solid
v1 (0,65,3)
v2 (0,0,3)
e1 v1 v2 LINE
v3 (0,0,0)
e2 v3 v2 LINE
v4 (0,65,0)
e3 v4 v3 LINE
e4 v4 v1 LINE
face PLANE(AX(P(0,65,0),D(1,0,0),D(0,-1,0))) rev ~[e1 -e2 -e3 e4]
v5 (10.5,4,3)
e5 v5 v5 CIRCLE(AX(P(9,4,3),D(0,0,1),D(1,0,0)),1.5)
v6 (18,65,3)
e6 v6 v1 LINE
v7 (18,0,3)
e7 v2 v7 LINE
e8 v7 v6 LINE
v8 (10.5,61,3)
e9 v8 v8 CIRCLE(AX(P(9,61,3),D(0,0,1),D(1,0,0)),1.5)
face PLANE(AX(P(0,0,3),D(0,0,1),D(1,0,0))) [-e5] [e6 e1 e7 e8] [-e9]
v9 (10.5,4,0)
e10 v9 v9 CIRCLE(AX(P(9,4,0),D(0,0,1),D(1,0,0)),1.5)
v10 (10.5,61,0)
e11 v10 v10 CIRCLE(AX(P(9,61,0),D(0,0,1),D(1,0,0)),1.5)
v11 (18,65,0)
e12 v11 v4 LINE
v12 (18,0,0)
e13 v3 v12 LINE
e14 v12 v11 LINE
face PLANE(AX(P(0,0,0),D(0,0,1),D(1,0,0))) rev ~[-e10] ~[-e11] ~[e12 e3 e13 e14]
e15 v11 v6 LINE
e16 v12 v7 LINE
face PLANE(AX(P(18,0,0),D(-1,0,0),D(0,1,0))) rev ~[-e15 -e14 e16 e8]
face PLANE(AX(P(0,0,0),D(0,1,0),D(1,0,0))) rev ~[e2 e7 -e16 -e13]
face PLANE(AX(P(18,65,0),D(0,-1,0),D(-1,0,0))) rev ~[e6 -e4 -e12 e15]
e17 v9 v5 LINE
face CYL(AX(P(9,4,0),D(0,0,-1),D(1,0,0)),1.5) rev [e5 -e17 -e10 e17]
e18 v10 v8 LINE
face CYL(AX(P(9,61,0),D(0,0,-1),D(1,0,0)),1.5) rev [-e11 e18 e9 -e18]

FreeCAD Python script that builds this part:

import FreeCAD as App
import Part
import Sketcher
Q = App.Units.Quantity

doc = App.newDocument("Part")
body = doc.addObject("PartDesign::Body", "Body")

sketch1 = doc.addObject("Sketcher::SketchObject", "Sketch")
body.addObject(sketch1)
sketch1.AttachmentSupport = (doc.XY_Plane, [""])
sketch1.MapMode = "FlatFace"
sketch1.addGeometry([
    Part.LineSegment(App.Vector(0, 65, 0), App.Vector(0, 0, 0)),
    Part.LineSegment(App.Vector(0, 0, 0), App.Vector(18, 0, 0)),
    Part.LineSegment(App.Vector(18, 0, 0), App.Vector(18, 65, 0)),
    Part.LineSegment(App.Vector(18, 65, 0), App.Vector(0, 65, 0)),
    Part.Circle(App.Vector(9, 4, 0), App.Vector(0, 0, 1), 1.5),
    Part.Circle(App.Vector(9, 61, 0), App.Vector(0, 0, 1), 1.5),
], False)
sketch1.addConstraint([
    Sketcher.Constraint("Coincident", 0, 2, 1, 1),
    Sketcher.Constraint("Coincident", 1, 2, 2, 1),
    Sketcher.Constraint("Coincident", 2, 2, 3, 1),
    Sketcher.Constraint("Coincident", 3, 2, 0, 1),
    Sketcher.Constraint("Vertical", 0),
    Sketcher.Constraint("Horizontal", 1),
    Sketcher.Constraint("Vertical", 2),
    Sketcher.Constraint("Horizontal", 3),
    Sketcher.Constraint("Coincident", 0, 2, -1, 1),
    Sketcher.Constraint("Equal", 4, 5),
    Sketcher.Constraint("Vertical", 4, 3, 5, 3),
    Sketcher.Constraint("Diameter", 4, Q("3 mm")),
    Sketcher.Constraint("DistanceX", 1, 1, 1, 2, Q("18 mm")),
    Sketcher.Constraint("DistanceY", 0, 2, 0, 1, Q("65 mm")),
    Sketcher.Constraint("DistanceX", -1, 1, 4, 3, Q("9 mm")),
    Sketcher.Constraint("DistanceY", -1, 1, 4, 3, Q("4 mm")),
    Sketcher.Constraint("DistanceY", 5, 3, 2, 2, Q("4 mm")),
])
pad1 = doc.addObject("PartDesign::Pad", "Pad")
body.addObject(pad1)
pad1.Profile = sketch1
pad1.Length = 3

doc.recompute()
